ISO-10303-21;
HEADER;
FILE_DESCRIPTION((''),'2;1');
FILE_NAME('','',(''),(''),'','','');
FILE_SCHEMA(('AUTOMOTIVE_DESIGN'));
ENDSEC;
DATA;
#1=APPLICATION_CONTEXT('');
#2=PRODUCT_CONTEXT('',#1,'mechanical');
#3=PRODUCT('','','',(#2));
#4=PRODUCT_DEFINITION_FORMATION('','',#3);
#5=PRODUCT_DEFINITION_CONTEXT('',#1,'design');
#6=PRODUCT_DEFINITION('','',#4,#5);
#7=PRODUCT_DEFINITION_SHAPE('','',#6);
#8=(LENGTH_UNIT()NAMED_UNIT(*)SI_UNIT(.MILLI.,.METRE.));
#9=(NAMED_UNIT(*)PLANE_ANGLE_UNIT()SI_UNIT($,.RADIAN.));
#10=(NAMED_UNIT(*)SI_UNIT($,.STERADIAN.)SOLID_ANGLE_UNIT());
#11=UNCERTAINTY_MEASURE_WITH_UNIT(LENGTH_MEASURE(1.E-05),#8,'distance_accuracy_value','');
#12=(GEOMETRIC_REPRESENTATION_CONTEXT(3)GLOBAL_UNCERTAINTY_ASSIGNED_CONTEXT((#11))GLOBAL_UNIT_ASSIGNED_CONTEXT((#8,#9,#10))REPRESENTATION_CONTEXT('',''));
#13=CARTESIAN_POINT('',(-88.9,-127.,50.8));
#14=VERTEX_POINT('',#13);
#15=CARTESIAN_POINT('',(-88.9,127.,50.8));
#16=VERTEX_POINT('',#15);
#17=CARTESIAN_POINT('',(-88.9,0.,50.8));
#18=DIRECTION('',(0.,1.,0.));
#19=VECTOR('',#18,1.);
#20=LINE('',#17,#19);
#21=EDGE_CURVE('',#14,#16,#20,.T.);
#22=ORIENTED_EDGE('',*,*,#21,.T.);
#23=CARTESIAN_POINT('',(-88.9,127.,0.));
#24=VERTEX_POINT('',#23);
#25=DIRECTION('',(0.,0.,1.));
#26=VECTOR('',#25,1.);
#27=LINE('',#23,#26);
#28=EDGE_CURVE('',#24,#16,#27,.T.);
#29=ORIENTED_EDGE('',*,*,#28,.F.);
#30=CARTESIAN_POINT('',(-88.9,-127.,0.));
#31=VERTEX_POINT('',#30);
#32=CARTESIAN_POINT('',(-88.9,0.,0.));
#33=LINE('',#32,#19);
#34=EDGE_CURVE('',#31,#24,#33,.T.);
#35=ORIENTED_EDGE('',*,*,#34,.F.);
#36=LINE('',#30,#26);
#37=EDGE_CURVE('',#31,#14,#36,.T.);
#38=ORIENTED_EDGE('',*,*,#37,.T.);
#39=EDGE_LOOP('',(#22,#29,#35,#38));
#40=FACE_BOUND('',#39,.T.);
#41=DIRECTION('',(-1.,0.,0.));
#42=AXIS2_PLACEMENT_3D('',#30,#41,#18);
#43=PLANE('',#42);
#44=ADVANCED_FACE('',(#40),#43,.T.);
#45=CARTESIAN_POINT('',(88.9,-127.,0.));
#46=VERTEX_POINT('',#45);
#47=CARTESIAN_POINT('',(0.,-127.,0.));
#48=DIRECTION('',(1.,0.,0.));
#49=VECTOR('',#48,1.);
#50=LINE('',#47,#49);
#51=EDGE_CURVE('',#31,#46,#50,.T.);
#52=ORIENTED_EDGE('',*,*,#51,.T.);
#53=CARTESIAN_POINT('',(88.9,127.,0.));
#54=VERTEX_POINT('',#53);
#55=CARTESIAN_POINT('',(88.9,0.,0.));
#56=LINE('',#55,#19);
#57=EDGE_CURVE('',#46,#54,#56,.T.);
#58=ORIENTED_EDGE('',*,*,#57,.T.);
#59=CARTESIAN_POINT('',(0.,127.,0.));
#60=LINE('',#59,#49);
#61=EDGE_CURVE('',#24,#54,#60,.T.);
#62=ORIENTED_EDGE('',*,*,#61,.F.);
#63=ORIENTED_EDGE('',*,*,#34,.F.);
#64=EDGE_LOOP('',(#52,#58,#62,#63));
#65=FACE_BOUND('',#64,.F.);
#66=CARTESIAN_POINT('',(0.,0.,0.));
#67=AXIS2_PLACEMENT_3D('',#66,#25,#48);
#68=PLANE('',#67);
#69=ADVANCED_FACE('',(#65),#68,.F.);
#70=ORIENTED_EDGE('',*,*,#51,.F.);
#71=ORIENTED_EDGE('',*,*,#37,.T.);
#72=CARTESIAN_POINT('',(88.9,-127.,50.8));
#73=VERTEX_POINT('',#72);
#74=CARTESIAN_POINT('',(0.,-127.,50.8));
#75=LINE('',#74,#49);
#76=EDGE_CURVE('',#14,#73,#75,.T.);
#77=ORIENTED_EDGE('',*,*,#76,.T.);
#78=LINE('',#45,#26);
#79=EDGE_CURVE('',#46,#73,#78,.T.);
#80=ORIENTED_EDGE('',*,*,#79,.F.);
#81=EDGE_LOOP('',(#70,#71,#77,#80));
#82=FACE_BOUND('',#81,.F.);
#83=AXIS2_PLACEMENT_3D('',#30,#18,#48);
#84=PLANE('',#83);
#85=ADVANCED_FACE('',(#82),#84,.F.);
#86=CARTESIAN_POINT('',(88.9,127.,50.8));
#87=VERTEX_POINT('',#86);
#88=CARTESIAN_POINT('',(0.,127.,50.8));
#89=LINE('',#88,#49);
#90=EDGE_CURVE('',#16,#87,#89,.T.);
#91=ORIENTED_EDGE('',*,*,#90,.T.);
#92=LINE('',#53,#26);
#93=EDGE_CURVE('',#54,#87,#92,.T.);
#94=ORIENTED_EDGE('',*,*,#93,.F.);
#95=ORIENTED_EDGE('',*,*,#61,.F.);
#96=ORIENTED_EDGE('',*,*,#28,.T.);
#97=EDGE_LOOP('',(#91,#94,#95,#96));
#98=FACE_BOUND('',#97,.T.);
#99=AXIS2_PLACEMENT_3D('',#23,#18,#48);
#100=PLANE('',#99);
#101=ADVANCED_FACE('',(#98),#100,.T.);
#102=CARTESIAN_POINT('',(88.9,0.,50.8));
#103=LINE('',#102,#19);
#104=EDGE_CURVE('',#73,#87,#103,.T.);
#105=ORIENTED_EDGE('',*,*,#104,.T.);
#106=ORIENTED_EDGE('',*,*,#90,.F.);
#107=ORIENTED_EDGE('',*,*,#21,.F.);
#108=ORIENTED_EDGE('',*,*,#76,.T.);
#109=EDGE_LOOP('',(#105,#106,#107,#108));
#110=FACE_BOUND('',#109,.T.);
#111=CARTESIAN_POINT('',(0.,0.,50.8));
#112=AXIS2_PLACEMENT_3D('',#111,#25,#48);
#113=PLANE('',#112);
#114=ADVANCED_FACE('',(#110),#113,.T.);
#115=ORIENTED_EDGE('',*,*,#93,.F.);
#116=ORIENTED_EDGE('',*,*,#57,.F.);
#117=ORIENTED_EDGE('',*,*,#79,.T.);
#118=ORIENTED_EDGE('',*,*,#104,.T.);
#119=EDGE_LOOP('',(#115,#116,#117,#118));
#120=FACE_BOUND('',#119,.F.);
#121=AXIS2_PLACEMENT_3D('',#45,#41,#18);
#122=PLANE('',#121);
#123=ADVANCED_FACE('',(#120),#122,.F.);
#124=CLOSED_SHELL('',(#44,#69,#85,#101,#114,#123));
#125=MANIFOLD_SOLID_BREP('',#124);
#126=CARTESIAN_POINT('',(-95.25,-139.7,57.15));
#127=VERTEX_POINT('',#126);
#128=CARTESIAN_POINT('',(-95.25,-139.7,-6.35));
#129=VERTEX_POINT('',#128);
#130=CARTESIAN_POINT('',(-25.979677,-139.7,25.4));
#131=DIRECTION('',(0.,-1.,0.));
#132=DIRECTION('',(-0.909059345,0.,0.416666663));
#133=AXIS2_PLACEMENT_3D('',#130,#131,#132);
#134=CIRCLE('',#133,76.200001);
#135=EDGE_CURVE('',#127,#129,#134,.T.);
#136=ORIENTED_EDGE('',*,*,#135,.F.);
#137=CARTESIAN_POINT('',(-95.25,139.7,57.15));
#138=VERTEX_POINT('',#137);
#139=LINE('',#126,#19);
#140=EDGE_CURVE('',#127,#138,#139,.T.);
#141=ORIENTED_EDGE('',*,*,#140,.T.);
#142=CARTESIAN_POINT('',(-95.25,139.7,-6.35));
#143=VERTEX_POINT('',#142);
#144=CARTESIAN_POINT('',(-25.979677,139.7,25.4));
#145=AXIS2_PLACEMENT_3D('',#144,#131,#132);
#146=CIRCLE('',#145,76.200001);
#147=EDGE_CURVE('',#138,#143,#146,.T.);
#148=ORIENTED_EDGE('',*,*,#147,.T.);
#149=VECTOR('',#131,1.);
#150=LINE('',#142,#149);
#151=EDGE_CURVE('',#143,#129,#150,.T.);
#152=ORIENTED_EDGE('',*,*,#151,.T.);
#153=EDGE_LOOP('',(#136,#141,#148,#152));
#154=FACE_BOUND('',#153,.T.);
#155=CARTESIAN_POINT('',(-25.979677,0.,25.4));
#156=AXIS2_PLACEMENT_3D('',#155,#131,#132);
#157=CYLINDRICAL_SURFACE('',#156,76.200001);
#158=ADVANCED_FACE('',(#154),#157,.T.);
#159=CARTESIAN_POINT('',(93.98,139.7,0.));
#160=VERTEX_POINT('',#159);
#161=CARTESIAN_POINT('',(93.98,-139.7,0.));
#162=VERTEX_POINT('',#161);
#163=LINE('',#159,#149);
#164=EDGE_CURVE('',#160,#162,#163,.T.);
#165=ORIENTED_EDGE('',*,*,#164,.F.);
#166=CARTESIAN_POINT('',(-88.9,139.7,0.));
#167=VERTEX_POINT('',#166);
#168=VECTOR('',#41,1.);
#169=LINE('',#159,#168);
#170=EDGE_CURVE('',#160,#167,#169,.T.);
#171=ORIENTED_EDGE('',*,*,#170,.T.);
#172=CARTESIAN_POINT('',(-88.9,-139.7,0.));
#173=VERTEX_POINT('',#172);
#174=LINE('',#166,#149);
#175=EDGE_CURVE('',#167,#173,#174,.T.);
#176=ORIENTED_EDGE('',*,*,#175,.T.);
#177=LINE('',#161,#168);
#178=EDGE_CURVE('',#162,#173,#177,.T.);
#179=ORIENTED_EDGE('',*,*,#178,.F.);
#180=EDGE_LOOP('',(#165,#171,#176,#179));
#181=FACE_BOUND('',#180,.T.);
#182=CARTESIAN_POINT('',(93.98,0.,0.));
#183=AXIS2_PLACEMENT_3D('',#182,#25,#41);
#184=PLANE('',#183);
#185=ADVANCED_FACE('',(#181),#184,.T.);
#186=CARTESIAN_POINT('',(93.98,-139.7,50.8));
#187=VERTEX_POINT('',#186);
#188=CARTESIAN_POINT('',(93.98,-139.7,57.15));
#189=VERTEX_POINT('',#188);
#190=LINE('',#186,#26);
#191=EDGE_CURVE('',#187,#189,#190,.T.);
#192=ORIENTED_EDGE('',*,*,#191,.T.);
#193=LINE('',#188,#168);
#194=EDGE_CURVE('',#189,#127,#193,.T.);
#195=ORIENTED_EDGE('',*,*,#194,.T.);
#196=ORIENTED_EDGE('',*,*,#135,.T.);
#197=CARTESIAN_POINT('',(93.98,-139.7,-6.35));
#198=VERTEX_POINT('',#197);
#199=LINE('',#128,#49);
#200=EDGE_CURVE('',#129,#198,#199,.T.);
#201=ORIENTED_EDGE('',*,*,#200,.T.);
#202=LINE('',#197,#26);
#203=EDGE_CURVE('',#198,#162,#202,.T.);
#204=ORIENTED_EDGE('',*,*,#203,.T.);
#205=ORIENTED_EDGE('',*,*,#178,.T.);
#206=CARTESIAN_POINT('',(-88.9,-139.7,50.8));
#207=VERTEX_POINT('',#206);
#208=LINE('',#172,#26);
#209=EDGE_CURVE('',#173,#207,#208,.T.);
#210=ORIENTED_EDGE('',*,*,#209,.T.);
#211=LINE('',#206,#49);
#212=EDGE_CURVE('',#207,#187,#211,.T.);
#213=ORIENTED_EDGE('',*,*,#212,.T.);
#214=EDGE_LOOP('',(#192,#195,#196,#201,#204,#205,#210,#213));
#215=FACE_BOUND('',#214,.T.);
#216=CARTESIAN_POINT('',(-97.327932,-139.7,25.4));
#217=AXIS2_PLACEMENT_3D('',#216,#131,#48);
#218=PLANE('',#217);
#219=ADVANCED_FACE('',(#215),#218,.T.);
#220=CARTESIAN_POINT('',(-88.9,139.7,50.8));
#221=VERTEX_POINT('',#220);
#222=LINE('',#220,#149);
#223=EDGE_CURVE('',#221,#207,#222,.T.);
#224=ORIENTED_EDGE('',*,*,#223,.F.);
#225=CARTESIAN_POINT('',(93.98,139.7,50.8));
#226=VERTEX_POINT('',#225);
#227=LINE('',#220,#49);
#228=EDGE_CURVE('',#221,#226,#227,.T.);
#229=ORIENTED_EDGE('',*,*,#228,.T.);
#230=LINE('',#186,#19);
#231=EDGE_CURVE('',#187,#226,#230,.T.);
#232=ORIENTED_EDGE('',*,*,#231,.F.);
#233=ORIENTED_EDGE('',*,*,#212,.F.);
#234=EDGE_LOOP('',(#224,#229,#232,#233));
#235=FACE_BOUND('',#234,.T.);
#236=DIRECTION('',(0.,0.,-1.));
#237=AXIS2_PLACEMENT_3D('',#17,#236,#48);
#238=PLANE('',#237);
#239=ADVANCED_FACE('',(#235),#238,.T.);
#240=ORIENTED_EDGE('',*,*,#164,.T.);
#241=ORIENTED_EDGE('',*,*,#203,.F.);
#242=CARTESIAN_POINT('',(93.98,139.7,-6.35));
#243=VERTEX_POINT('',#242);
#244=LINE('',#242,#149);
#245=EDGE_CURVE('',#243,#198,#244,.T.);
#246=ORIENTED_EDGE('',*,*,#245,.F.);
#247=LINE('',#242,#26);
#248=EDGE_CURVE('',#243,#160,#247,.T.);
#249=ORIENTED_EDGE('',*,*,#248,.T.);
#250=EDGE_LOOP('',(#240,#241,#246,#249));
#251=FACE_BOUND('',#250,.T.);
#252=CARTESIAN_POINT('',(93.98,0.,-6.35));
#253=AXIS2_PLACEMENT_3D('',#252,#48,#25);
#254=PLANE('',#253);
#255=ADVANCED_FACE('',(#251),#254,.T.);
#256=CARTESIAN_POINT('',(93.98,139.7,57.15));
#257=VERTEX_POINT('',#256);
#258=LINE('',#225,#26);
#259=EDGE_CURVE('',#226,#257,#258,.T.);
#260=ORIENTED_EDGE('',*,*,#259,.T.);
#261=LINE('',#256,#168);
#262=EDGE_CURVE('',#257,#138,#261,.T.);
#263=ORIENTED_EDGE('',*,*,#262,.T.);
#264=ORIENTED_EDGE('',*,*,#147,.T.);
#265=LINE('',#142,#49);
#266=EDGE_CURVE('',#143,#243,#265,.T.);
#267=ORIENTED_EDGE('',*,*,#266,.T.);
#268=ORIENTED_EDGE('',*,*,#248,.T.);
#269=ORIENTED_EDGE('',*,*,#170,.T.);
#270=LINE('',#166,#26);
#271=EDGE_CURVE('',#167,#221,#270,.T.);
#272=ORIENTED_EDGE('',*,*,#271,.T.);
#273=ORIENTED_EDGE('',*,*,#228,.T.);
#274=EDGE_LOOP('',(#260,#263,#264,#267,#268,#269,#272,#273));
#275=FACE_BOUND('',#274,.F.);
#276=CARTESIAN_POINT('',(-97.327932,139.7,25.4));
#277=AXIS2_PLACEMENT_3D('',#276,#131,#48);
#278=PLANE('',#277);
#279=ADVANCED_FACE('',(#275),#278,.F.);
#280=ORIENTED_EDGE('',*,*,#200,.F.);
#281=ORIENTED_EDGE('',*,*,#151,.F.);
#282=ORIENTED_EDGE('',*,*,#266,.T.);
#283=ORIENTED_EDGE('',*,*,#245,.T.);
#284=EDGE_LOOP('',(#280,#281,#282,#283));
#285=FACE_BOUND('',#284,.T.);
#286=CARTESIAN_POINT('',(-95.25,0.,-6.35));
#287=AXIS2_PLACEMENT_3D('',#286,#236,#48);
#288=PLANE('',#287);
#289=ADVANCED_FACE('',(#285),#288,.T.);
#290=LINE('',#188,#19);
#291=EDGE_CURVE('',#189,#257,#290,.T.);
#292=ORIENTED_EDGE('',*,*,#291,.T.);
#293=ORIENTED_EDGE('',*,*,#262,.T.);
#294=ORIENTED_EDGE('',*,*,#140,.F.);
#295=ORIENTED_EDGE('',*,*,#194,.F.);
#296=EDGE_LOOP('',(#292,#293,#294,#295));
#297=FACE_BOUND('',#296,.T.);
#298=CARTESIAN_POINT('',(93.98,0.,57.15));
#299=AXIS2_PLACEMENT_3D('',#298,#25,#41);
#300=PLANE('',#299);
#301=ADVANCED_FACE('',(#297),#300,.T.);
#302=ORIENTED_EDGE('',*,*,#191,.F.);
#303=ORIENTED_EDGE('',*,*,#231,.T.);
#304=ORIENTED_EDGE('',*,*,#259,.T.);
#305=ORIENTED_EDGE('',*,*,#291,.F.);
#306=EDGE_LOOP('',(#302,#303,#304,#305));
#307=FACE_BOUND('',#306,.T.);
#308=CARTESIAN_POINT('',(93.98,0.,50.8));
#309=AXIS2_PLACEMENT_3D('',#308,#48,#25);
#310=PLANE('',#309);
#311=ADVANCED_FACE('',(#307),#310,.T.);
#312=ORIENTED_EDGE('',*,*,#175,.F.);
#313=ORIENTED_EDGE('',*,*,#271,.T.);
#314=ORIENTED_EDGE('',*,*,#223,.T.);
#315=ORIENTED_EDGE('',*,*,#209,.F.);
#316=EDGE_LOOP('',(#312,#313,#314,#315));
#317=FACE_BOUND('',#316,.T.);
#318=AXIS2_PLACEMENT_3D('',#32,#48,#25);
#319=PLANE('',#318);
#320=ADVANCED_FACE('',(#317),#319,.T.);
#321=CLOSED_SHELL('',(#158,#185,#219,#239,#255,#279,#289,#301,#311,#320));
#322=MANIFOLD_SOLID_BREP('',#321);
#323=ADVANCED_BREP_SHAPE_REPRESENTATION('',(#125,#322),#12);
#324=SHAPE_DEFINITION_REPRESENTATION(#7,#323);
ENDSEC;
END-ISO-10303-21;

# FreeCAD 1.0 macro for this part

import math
import FreeCAD as App
import Part
import Sketcher
from FreeCAD import Vector
Q = App.Units.Quantity

doc = App.newDocument("Part")
body = doc.addObject("PartDesign::Body", "Body")

# Sketch on XY plane
sketch1 = body.newObject("Sketcher::SketchObject", "Sketch")
sketch1.AttachmentSupport = (doc.getObject("XY_Plane"), [""])
sketch1.MapMode = "FlatFace"
sketch1.addGeometry([
    Part.LineSegment(Vector(-88.9, 127, 0), Vector(-88.9, -127, 0)),
    Part.LineSegment(Vector(-88.9, -127, 0), Vector(88.9, -127, 0)),
    Part.LineSegment(Vector(88.9, -127, 0), Vector(88.9, 127, 0)),
    Part.LineSegment(Vector(88.9, 127, 0), Vector(-88.9, 127, 0)),
], False)
sketch1.addConstraint([
    Sketcher.Constraint("Coincident", 0, 2, 1, 1),
    Sketcher.Constraint("Coincident", 1, 2, 2, 1),
    Sketcher.Constraint("Coincident", 2, 2, 3, 1),
    Sketcher.Constraint("Coincident", 3, 2, 0, 1),
    Sketcher.Constraint("Vertical", 0),
    Sketcher.Constraint("Horizontal", 1),
    Sketcher.Constraint("Vertical", 2),
    Sketcher.Constraint("Horizontal", 3),
    Sketcher.Constraint("Symmetric", 0, 2, 2, 2, -1, 1),
    Sketcher.Constraint("DistanceX", 1, 1, 1, 2, Q("7 in")),
    Sketcher.Constraint("DistanceY", 0, 2, 0, 1, Q("10 in")),
])
pad1 = body.newObject("PartDesign::Pad", "Pad")
pad1.Profile = sketch1
pad1.Length = Q("2 in")
body2 = doc.addObject("PartDesign::Body", "Body001")

# Sketch on XZ plane
sketch2 = body2.newObject("Sketcher::SketchObject", "Sketch001")
sketch2.AttachmentSupport = (doc.getObject("XZ_Plane001"), [""])
sketch2.MapMode = "FlatFace"
sketch2.addGeometry([
    Part.ArcOfCircle(Part.Circle(Vector(-25.979677, 25.4, 0), Vector(0, 0, 1), 76.200001), math.radians(155.375682), math.radians(204.624318)),  # 0
    Part.LineSegment(Vector(-95.25, -6.35, 0), Vector(93.98, -6.35, 0)),  # 1
    Part.LineSegment(Vector(93.98, -6.35, 0), Vector(93.98, 0, 0)),  # 2
    Part.LineSegment(Vector(93.98, 0, 0), Vector(-88.9, 0, 0)),  # 3
    Part.LineSegment(Vector(-88.9, 0, 0), Vector(-88.9, 50.8, 0)),  # 4
    Part.LineSegment(Vector(-88.9, 50.8, 0), Vector(93.98, 50.8, 0)),  # 5
    Part.LineSegment(Vector(93.98, 50.8, 0), Vector(93.98, 57.15, 0)),  # 6
    Part.LineSegment(Vector(93.98, 57.15, 0), Vector(-95.25, 57.15, 0)),  # 7
], False)
sketch2.addConstraint([
    Sketcher.Constraint("Coincident", 0, 2, 1, 1),
    Sketcher.Constraint("Coincident", 1, 2, 2, 1),
    Sketcher.Constraint("Coincident", 2, 2, 3, 1),
    Sketcher.Constraint("Coincident", 3, 2, 4, 1),
    Sketcher.Constraint("Coincident", 4, 2, 5, 1),
    Sketcher.Constraint("Coincident", 5, 2, 6, 1),
    Sketcher.Constraint("Coincident", 6, 2, 7, 1),
    Sketcher.Constraint("Coincident", 7, 2, 0, 1),
    Sketcher.Constraint("Horizontal", 1),
    Sketcher.Constraint("Vertical", 2),
    Sketcher.Constraint("Horizontal", 3),
    Sketcher.Constraint("Vertical", 4),
    Sketcher.Constraint("Horizontal", 5),
    Sketcher.Constraint("Vertical", 6),
    Sketcher.Constraint("Horizontal", 7),
    Sketcher.Constraint("PointOnObject", 2, 2, -1),
    Sketcher.Constraint("Vertical", 2, 2, 5, 2),
    Sketcher.Constraint("Vertical", 0, 2, 7, 2),
    Sketcher.Constraint("Equal", 2, 6),
    Sketcher.Constraint("Radius", 0, Q("3 in")),
    Sketcher.Constraint("DistanceY", 4, 1, 4, 2, Q("2 in")),
    Sketcher.Constraint("DistanceX", 3, 2, 3, 1, Q("7.2 in")),
    Sketcher.Constraint("DistanceX", 1, 1, 1, 2, Q("7.45 in")),
    Sketcher.Constraint("DistanceY", 2, 1, 2, 2, Q("0.25 in")),
    Sketcher.Constraint("DistanceX", -1, 1, 1, 2, Q("3.7 in")),
])
pad2 = body2.newObject("PartDesign::Pad", "Pad001")
pad2.Profile = sketch2
pad2.Length = Q("11 in")
pad2.Midplane = True

doc.recompute()
